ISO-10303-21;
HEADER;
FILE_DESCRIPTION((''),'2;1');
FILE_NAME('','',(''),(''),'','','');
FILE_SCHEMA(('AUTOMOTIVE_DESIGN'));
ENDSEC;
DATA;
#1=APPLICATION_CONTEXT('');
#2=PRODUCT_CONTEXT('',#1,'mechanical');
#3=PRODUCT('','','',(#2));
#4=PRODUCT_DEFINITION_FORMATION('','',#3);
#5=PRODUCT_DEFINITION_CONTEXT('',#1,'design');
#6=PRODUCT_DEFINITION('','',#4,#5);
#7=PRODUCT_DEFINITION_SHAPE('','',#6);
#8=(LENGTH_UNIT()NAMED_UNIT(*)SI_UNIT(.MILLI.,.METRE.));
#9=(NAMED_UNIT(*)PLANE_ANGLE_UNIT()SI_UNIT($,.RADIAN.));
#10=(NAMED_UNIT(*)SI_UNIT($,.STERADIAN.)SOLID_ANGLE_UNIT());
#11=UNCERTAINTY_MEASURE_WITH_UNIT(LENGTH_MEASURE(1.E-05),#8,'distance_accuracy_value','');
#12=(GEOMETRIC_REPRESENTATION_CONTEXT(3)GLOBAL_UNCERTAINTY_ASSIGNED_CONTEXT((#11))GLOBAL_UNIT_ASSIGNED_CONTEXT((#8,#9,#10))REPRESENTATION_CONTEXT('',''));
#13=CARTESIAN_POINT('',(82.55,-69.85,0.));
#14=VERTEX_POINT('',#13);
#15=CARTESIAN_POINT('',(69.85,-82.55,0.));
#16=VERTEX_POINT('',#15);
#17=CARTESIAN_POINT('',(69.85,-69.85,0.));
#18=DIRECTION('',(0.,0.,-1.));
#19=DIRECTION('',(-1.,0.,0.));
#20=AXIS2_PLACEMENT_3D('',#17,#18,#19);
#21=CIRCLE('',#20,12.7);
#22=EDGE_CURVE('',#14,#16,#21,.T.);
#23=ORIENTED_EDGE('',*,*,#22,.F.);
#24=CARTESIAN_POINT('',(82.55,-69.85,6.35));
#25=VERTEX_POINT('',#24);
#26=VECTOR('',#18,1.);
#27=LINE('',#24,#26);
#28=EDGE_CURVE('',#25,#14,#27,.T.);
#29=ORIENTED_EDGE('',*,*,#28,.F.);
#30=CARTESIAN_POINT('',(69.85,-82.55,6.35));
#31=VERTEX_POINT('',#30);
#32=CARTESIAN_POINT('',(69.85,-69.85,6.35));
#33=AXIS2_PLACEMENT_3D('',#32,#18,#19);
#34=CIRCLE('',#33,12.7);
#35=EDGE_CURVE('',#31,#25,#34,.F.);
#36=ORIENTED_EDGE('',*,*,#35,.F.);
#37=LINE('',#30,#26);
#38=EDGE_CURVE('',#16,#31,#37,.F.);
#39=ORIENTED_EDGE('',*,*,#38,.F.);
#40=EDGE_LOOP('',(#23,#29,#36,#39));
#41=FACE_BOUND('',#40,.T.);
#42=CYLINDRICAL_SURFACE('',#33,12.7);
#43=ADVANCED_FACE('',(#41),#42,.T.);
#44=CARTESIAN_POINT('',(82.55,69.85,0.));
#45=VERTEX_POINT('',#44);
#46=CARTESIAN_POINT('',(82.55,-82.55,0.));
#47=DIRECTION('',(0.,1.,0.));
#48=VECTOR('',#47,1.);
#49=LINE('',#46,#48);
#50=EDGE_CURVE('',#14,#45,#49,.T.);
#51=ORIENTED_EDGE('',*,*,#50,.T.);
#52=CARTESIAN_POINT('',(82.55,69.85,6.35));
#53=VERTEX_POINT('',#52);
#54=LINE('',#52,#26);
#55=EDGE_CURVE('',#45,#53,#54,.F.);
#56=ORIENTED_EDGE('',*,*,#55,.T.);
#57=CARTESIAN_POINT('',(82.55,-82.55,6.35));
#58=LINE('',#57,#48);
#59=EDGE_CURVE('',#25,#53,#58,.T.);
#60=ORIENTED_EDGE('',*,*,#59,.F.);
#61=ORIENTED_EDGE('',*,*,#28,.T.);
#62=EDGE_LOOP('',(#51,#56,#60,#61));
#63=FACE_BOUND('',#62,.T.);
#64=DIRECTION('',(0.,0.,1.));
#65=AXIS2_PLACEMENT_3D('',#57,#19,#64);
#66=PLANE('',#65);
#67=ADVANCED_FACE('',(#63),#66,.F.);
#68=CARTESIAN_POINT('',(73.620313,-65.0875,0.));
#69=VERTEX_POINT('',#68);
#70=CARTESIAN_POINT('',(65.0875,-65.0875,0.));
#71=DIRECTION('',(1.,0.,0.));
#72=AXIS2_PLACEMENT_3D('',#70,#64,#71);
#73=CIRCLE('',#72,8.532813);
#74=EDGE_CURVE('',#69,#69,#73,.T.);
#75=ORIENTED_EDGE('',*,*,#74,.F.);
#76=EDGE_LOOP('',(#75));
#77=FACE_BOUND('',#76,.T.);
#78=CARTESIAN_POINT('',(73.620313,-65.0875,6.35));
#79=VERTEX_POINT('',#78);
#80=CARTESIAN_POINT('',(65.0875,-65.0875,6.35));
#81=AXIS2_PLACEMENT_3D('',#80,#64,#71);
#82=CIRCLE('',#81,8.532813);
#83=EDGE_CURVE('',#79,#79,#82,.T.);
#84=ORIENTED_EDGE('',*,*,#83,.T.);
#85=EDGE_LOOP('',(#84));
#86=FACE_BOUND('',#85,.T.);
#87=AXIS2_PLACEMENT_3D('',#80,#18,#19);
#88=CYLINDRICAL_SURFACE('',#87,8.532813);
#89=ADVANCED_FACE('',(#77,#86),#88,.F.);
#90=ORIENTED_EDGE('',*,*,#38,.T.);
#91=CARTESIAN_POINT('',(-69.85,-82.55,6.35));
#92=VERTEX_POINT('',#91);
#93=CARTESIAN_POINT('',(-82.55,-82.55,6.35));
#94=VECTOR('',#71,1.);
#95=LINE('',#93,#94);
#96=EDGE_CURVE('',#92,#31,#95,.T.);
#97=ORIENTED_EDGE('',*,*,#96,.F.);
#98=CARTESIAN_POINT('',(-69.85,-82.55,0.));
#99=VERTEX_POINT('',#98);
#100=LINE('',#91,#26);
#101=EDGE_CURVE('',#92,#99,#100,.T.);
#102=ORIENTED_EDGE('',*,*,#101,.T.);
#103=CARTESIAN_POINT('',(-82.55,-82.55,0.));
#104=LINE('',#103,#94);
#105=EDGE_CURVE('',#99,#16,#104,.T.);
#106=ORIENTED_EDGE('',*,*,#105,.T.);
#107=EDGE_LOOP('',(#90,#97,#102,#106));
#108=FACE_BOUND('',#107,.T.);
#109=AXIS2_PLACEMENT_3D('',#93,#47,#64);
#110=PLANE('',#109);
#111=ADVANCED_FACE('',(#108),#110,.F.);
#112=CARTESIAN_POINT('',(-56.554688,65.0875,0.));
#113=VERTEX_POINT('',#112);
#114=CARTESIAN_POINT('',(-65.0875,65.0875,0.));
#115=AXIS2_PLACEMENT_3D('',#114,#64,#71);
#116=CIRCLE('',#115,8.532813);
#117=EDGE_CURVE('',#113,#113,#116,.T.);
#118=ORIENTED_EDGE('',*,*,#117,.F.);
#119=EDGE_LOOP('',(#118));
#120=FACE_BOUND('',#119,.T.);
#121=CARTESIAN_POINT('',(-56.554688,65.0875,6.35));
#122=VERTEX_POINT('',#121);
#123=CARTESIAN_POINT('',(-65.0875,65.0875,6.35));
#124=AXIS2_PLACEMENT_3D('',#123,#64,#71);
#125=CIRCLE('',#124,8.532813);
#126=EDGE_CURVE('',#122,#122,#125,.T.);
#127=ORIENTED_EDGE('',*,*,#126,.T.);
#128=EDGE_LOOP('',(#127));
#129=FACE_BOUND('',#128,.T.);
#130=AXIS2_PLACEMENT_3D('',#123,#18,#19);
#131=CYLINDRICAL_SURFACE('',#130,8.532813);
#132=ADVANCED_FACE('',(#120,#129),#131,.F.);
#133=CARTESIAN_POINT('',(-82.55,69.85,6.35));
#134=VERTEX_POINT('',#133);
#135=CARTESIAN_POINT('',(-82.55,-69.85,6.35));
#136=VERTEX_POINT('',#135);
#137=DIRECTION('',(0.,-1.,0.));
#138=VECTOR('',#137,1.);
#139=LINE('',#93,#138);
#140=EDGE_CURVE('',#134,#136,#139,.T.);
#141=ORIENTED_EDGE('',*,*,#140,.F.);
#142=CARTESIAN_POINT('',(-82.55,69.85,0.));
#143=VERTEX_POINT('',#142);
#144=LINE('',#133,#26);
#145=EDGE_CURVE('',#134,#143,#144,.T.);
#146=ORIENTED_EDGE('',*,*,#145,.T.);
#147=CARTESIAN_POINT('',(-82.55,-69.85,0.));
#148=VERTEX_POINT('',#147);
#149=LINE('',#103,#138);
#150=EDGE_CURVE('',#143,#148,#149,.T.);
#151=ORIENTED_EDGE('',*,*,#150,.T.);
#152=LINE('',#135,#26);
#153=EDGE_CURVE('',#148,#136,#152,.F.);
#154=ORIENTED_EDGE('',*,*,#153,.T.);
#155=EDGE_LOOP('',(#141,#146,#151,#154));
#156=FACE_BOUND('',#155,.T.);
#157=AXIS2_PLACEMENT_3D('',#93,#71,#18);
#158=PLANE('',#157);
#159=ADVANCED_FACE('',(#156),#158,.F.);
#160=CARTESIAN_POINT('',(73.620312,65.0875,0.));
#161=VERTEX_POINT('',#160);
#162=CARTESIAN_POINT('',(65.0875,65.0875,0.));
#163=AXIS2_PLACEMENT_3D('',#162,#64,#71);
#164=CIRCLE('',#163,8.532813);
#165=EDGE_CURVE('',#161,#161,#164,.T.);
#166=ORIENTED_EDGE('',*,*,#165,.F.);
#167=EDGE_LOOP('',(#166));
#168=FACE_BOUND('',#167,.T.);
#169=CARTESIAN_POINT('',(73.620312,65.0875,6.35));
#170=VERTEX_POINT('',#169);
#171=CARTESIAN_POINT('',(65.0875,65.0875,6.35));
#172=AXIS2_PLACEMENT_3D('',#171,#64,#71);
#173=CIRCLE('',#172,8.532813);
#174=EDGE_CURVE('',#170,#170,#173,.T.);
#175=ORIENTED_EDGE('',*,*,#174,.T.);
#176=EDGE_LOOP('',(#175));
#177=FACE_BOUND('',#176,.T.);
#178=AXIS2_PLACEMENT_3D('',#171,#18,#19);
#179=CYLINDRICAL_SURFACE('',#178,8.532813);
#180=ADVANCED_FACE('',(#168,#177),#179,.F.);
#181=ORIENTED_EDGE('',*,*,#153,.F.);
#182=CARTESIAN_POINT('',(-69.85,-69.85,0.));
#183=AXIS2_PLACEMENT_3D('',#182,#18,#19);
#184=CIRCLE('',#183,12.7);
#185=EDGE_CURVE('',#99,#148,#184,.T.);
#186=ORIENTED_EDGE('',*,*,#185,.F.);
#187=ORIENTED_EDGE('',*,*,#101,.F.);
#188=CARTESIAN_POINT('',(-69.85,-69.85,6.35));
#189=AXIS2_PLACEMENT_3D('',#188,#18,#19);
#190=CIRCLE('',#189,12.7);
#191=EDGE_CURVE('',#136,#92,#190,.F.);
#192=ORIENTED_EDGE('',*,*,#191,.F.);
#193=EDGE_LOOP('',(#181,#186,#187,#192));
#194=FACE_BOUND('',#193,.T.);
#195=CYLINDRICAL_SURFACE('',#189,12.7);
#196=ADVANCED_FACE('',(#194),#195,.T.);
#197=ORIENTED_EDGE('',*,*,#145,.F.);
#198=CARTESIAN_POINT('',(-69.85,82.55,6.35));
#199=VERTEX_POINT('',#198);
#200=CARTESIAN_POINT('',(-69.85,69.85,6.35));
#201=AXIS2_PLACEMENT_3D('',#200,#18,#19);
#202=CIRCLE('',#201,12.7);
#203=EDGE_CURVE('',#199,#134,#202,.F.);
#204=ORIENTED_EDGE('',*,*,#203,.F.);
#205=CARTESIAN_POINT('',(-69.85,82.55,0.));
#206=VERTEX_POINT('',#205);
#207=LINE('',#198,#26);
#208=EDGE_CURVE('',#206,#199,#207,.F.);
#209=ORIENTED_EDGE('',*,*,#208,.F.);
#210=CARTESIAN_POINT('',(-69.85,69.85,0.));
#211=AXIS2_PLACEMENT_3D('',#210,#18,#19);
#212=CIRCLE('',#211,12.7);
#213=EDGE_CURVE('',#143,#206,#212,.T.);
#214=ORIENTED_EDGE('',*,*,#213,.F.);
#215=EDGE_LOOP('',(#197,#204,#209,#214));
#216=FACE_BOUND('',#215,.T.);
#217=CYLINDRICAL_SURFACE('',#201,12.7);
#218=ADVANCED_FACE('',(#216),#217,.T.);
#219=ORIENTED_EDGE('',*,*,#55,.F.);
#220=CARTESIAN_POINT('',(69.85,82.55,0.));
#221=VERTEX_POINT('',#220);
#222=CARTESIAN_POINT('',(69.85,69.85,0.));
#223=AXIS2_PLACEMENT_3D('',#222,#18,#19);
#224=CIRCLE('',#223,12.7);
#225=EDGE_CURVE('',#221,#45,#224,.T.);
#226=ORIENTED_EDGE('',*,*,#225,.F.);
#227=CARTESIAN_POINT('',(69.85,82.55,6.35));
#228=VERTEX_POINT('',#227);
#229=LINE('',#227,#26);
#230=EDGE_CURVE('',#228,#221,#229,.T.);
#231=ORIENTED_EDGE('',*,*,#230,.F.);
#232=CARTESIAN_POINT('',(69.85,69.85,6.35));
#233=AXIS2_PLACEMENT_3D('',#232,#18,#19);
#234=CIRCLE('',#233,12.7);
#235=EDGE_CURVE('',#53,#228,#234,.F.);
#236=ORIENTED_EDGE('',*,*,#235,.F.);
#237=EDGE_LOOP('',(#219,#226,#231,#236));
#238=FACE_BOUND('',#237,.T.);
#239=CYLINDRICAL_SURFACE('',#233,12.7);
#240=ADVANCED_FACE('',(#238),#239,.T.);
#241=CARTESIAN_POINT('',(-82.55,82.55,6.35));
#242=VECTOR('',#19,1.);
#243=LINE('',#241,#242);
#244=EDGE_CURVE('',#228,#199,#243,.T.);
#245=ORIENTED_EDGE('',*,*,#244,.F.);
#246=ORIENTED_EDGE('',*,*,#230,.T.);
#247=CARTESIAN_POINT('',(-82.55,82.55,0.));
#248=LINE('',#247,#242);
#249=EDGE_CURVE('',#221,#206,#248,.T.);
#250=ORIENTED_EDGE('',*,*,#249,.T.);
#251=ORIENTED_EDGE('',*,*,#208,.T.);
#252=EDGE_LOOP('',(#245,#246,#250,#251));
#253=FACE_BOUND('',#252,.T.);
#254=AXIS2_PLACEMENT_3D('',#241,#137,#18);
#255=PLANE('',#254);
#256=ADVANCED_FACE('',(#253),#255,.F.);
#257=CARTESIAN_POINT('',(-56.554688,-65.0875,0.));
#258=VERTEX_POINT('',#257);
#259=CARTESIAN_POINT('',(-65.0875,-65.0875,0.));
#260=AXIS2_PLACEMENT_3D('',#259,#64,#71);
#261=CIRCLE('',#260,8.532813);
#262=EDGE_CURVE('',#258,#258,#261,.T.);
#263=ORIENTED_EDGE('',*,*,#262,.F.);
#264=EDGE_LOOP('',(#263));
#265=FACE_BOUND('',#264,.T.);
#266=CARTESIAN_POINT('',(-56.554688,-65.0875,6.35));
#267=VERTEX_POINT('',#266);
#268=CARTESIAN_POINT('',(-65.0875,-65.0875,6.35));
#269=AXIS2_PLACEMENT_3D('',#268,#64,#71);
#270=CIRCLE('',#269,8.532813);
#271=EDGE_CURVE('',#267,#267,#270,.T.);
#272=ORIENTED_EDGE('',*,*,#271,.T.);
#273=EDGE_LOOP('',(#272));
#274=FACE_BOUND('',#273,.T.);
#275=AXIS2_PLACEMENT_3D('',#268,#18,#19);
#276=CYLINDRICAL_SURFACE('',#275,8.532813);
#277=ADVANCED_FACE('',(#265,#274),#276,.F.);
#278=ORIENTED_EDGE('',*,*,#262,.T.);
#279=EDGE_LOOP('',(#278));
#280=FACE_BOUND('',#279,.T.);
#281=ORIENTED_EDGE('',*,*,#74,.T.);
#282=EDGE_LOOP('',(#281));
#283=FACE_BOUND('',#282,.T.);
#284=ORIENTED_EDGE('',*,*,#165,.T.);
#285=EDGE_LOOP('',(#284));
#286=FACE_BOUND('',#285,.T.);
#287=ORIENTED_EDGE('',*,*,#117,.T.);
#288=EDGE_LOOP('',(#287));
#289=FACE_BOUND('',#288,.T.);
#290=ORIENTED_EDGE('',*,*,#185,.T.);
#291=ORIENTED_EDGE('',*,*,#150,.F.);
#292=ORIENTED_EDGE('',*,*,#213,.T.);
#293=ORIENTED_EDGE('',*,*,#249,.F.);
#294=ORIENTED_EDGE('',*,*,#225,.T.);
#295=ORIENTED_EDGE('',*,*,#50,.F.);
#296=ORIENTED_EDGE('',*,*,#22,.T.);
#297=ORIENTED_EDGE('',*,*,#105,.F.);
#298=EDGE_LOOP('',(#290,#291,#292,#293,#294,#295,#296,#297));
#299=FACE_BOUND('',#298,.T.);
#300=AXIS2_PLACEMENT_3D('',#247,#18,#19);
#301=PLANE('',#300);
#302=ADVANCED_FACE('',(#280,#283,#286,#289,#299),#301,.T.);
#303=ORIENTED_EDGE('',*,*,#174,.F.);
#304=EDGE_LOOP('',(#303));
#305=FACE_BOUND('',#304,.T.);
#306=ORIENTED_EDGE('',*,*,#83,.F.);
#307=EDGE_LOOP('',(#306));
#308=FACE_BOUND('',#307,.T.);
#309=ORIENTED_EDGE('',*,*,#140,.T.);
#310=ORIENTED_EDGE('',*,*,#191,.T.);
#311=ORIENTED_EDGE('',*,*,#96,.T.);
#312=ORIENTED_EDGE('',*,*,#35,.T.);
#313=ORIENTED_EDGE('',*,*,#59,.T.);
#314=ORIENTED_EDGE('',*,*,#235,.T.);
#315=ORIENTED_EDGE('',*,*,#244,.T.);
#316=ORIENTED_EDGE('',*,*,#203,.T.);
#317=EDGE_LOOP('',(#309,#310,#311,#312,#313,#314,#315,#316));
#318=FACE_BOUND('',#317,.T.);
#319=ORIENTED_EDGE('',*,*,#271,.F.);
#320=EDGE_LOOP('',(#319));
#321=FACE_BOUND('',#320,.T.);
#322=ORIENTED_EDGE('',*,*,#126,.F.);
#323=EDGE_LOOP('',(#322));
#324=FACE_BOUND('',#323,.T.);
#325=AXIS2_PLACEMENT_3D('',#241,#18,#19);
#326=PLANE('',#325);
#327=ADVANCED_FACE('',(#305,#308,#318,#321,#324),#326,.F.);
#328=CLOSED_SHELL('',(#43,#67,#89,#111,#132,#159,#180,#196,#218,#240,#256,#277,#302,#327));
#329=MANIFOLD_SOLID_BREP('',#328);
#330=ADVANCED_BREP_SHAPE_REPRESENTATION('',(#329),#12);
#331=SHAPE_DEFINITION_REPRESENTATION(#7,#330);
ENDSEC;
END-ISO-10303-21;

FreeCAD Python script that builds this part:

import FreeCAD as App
import Part
import Sketcher

V = App.Vector
Q = App.Units.Quantity


def edges_at(feature, points):
    """Names of the edges that pass closest to the given points."""
    edges = feature.Shape.Edges
    near = lambda p: min(range(len(edges)), key=lambda i: edges[i].distToShape(Part.Vertex(*p))[0])
    return sorted({f"Edge{near(p) + 1}" for p in points})

doc = App.newDocument("Part")
body = doc.addObject("PartDesign::Body", "Body")

# Sketch on XY plane
sketch1 = body.newObject("Sketcher::SketchObject", "Sketch")
sketch1.AttachmentSupport = (doc.getObject("XY_Plane"), [""])
sketch1.MapMode = "FlatFace"
sketch1.addGeometry([
    Part.LineSegment(V(-83, 83, 0), V(-83, -83, 0)),  # 0
    Part.LineSegment(V(-83, -83, 0), V(83, -83, 0)),  # 1
    Part.LineSegment(V(83, -83, 0), V(83, 83, 0)),  # 2
    Part.LineSegment(V(83, 83, 0), V(-83, 83, 0)),  # 3
    Part.Circle(V(-65, -65, 0), V(0, 0, 1), 9),  # 4
    Part.Circle(V(65, -65, 0), V(0, 0, 1), 9),  # 5
    Part.Circle(V(-65, 65, 0), V(0, 0, 1), 9),  # 6
    Part.Circle(V(65, 65, 0), V(0, 0, 1), 9),  # 7
], False)
sketch1.addConstraint([
    Sketcher.Constraint("Coincident", 0, 2, 1, 1),
    Sketcher.Constraint("Coincident", 1, 2, 2, 1),
    Sketcher.Constraint("Coincident", 2, 2, 3, 1),
    Sketcher.Constraint("Coincident", 3, 2, 0, 1),
    Sketcher.Constraint("Vertical", 0),
    Sketcher.Constraint("Horizontal", 1),
    Sketcher.Constraint("Vertical", 2),
    Sketcher.Constraint("Horizontal", 3),
    Sketcher.Constraint("Equal", 4, 5),
    Sketcher.Constraint("Equal", 5, 6),
    Sketcher.Constraint("Equal", 6, 7),
    Sketcher.Constraint("Symmetric", 5, 3, 6, 3, -1, 1),
    Sketcher.Constraint("Symmetric", 4, 3, 7, 3, -1, 1),
    Sketcher.Constraint("Symmetric", 0, 2, 2, 2, -1, 1),
    Sketcher.Constraint("Symmetric", 4, 3, 5, 3, -2),
    Sketcher.Constraint("Equal", 3, 0),
    Sketcher.Constraint("Diameter", 4, Q("0.671875 in")),
    Sketcher.Constraint("DistanceX", 1, 1, 1, 2, Q("6.5 in")),
    Sketcher.Constraint("DistanceX", 4, 3, -1, 1, Q("2.5625 in")),
    Sketcher.Constraint("DistanceY", 4, 3, -1, 1, Q("2.5625 in")),
])
pad1 = body.newObject("PartDesign::Pad", "Pad")
pad1.Profile = sketch1
pad1.Length = Q("0.25 in")
doc.recompute()

fillet = body.newObject("PartDesign::Fillet", "Fillet")
fillet.Base = (pad1, edges_at(pad1, [
    (-82.55, 82.55, 3.175),
    (82.55, 82.55, 3.175),
    (82.55, -82.55, 3.175),
    (-82.55, -82.55, 3.175),
]))
fillet.Radius = Q("0.5 in")

doc.recompute()
